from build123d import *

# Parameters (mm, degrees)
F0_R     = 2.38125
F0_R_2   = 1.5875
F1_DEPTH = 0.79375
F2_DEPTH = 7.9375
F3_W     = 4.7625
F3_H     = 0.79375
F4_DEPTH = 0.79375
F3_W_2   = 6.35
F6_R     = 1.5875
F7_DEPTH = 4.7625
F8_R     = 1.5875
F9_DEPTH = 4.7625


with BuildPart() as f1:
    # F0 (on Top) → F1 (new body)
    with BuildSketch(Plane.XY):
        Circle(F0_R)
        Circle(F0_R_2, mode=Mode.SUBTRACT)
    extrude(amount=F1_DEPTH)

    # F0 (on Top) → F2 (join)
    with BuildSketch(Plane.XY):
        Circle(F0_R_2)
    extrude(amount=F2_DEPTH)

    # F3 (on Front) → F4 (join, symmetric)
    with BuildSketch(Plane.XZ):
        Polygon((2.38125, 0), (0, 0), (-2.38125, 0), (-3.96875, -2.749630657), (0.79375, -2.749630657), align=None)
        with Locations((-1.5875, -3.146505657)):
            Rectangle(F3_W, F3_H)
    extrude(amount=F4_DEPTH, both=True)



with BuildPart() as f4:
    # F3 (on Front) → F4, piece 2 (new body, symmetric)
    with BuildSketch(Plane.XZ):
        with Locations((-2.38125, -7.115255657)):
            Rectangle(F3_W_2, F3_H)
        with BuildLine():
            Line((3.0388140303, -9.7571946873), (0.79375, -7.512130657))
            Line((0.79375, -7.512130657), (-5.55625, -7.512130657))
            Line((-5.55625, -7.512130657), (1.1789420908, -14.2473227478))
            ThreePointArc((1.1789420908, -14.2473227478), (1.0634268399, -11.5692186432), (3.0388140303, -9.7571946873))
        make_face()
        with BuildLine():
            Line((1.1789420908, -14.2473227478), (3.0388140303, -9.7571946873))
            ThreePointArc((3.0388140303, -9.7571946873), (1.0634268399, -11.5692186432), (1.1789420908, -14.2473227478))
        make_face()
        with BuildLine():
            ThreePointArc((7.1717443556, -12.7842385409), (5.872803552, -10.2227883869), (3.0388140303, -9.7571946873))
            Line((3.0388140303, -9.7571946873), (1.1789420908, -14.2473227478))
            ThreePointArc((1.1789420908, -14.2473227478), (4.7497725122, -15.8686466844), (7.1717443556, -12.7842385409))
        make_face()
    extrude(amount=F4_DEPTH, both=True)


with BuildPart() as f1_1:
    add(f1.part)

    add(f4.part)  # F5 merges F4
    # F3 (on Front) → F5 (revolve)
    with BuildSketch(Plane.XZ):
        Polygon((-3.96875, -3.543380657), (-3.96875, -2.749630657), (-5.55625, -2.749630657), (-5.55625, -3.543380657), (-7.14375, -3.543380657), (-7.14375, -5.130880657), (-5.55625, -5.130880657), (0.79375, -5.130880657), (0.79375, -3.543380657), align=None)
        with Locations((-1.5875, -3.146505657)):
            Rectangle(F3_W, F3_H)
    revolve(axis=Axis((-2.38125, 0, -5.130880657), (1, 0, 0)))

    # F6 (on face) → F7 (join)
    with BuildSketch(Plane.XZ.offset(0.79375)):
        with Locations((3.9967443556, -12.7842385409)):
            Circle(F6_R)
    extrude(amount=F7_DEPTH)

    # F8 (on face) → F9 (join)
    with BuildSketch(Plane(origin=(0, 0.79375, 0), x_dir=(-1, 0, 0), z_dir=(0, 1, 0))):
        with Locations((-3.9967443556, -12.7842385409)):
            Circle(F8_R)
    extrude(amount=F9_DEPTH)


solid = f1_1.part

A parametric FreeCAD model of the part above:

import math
import FreeCAD as App
import Part
import Sketcher

V = App.Vector
Q = App.Units.Quantity

doc = App.newDocument("Part")
params = doc.addObject("Spreadsheet::Sheet", "Params")
for row, (alias, value) in enumerate([
    ("sketch1_diameter", "0.1875 in"),
    ("sketch1_diameter2", "0.125 in"),
    ("pad1_length", "0.03125 in"),
    ("sketch2_diameter", "0.125 in"),
    ("pad2_length", "0.3125 in"),
    ("sketch3_width", "0.1875 in"),
    ("sketch3_height", "0.03125 in"),
    ("pad3_length", "0.0625 in"),
    ("sketch4_radius", "0.125 in"),
    ("sketch4_width", "0.25 in"),
    ("sketch4_height", "0.03125 in"),
    ("sketch4_length", "0.375 in"),
    ("sketch4_length2", "0.125 in"),
    ("pad4_length", "0.0625 in"),
    ("sketch5_width", "0.25 in"),
    ("sketch5_width2", "0.0625 in"),
    ("sketch5_height", "0.03125 in"),
    ("revolution_angle", "360 deg"),
    ("sketch6_diameter", "0.125 in"),
    ("pad5_length", "0.1875 in"),
    ("sketch7_diameter", "0.125 in"),
    ("pad6_length", "0.1875 in"),
], start=1):
    params.set(f"A{row}", alias)
    params.set(f"B{row}", "=" + value)
    params.setAlias(f"B{row}", alias)

body = doc.addObject("PartDesign::Body", "Body")

# Sketch on XY plane
sketch1 = body.newObject("Sketcher::SketchObject", "Sketch")
sketch1.AttachmentSupport = (doc.getObject("XY_Plane"), [""])
sketch1.MapMode = "FlatFace"
sketch1.addGeometry(Part.Circle(V(0, 0, 0), V(0, 0, 1), 2.38125), False)
sketch1.addGeometry(Part.Circle(V(0, 0, 0), V(0, 0, 1), 1.5875), False)
sketch1.addConstraint(Sketcher.Constraint("Coincident", 0, 3, -1, 1))
sketch1.addConstraint(Sketcher.Constraint("Coincident", 1, 3, -1, 1))
sketch1.addConstraint(Sketcher.Constraint("Diameter", 0, Q("0.1875 in")))
sketch1.addConstraint(Sketcher.Constraint("Diameter", 1, Q("0.125 in")))
sketch1.setExpression("Constraints[2]", "Params.sketch1_diameter")
sketch1.setExpression("Constraints[3]", "Params.sketch1_diameter2")
pad1 = body.newObject("PartDesign::Pad", "Pad")
pad1.Profile = sketch1
pad1.setExpression("Length", "Params.pad1_length")

# Sketch on XY plane
sketch2 = body.newObject("Sketcher::SketchObject", "Sketch001")
sketch2.AttachmentSupport = (doc.getObject("XY_Plane"), [""])
sketch2.MapMode = "FlatFace"
sketch2.addGeometry(Part.Circle(V(0, 0, 0), V(0, 0, 1), 1.5875), False)
sketch2.addConstraint(Sketcher.Constraint("Coincident", 0, 3, -1, 1))
sketch2.addConstraint(Sketcher.Constraint("Diameter", 0, Q("0.125 in")))
sketch2.setExpression("Constraints[1]", "Params.sketch2_diameter")
pad2 = body.newObject("PartDesign::Pad", "Pad001")
pad2.Profile = sketch2
pad2.setExpression("Length", "Params.pad2_length")

# Sketch on XZ plane
sketch3 = body.newObject("Sketcher::SketchObject", "Sketch002")
sketch3.AttachmentSupport = (doc.getObject("XZ_Plane"), [""])
sketch3.MapMode = "FlatFace"
sketch3.addGeometry(Part.LineSegment(V(2.38125, 0, 0), V(-2.38125, 0, 0)), False)
sketch3.addGeometry(Part.LineSegment(V(-2.38125, 0, 0), V(-3.96875, -2.749631, 0)), False)
sketch3.addGeometry(Part.LineSegment(V(-3.96875, -2.749631, 0), V(-3.96875, -3.543381, 0)), False)
sketch3.addGeometry(Part.LineSegment(V(-3.96875, -3.543381, 0), V(0.79375, -3.543381, 0)), False)
sketch3.addGeometry(Part.LineSegment(V(0.79375, -3.543381, 0), V(0.79375, -2.749631, 0)), False)
sketch3.addGeometry(Part.LineSegment(V(0.79375, -2.749631, 0), V(2.38125, 0, 0)), False)
sketch3.addConstraint(Sketcher.Constraint("Coincident", 0, 2, 1, 1))
sketch3.addConstraint(Sketcher.Constraint("Coincident", 1, 2, 2, 1))
sketch3.addConstraint(Sketcher.Constraint("Coincident", 2, 2, 3, 1))
sketch3.addConstraint(Sketcher.Constraint("Coincident", 3, 2, 4, 1))
sketch3.addConstraint(Sketcher.Constraint("Coincident", 4, 2, 5, 1))
sketch3.addConstraint(Sketcher.Constraint("Coincident", 5, 2, 0, 1))
sketch3.addConstraint(Sketcher.Constraint("Horizontal", 0))
sketch3.addConstraint(Sketcher.Constraint("Vertical", 2))
sketch3.addConstraint(Sketcher.Constraint("Horizontal", 3))
sketch3.addConstraint(Sketcher.Constraint("Vertical", 4))
sketch3.addConstraint(Sketcher.Constraint("Symmetric", 0, 2, 5, 2, -1, 1))
sketch3.addConstraint(Sketcher.Constraint("Parallel", 1, 5))
sketch3.addConstraint(Sketcher.Constraint("Horizontal", 1, 2, 4, 2))
sketch3.addConstraint(Sketcher.Constraint("Angle", 1, Q("-120 deg")))
sketch3.addConstraint(Sketcher.Constraint("DistanceX", 0, 2, 0, 1, Q("0.1875 in")))
sketch3.addConstraint(Sketcher.Constraint("DistanceY", 2, 2, 2, 1, Q("0.03125 in")))
sketch3.addConstraint(Sketcher.Constraint("DistanceX", 1, 2, 5, 2, Q("0.25 in")))
sketch3.setExpression("Constraints[14]", "Params.sketch3_width")
sketch3.setExpression("Constraints[15]", "Params.sketch3_height")
pad3 = body.newObject("PartDesign::Pad", "Pad002")
pad3.Profile = sketch3
pad3.setExpression("Length", "Params.pad3_length")
pad3.Midplane = True
body2 = doc.addObject("PartDesign::Body", "Body001")

# Sketch on XZ plane
sketch4 = body2.newObject("Sketcher::SketchObject", "Sketch003")
sketch4.AttachmentSupport = (doc.getObject("XZ_Plane001"), [""])
sketch4.MapMode = "FlatFace"
sketch4.addGeometry(Part.LineSegment(V(-5.55625, -6.718381, 0), V(-5.55625, -7.512131, 0)), False)
sketch4.addGeometry(Part.LineSegment(V(-5.55625, -7.512131, 0), V(1.178942, -14.247323, 0)), False)
sketch4.addGeometry(Part.ArcOfCircle(Part.Circle(V(3.996744, -12.784239, 0), V(0, 0, 1), 3.175), math.radians(-152.560359), math.radians(0)), False)
sketch4.addGeometry(Part.ArcOfCircle(Part.Circle(V(3.996744, -12.784239, 0), V(0, 0, 1), 3.175), math.radians(0), math.radians(107.560359)), False)
sketch4.addGeometry(Part.LineSegment(V(3.038814, -9.757195, 0), V(0.79375, -7.512131, 0)), False)
sketch4.addGeometry(Part.LineSegment(V(0.79375, -7.512131, 0), V(0.79375, -6.718381, 0)), False)
sketch4.addGeometry(Part.LineSegment(V(0.79375, -6.718381, 0), V(-5.55625, -6.718381, 0)), False)
sketch4.addConstraint(Sketcher.Constraint("Coincident", 0, 2, 1, 1))
sketch4.addConstraint(Sketcher.Constraint("Coincident", 1, 2, 2, 1))
sketch4.addConstraint(Sketcher.Constraint("Tangent", 2, 2, 3, 1))
sketch4.addConstraint(Sketcher.Constraint("Coincident", 3, 2, 4, 1))
sketch4.addConstraint(Sketcher.Constraint("Coincident", 4, 2, 5, 1))
sketch4.addConstraint(Sketcher.Constraint("Coincident", 5, 2, 6, 1))
sketch4.addConstraint(Sketcher.Constraint("Coincident", 6, 2, 0, 1))
sketch4.addConstraint(Sketcher.Constraint("Vertical", 0))
sketch4.addConstraint(Sketcher.Constraint("Vertical", 5))
sketch4.addConstraint(Sketcher.Constraint("Horizontal", 6))
sketch4.addConstraint(Sketcher.Constraint("Equal", 2, 3))
sketch4.addConstraint(Sketcher.Constraint("Parallel", 1, 4))
sketch4.addConstraint(Sketcher.Constraint("Horizontal", 3, 3, 2, 2))
sketch4.addConstraint(Sketcher.Constraint("Horizontal", 0, 2, 4, 2))
sketch4.addConstraint(Sketcher.Constraint("Angle", 1, Q("-45 deg")))
sketch4.addConstraint(Sketcher.Constraint("Radius", 2, Q("0.125 in")))
sketch4.addConstraint(Sketcher.Constraint("DistanceX", 6, 2, 6, 1, Q("0.25 in")))
sketch4.addConstraint(Sketcher.Constraint("DistanceY", 0, 2, 0, 1, Q("0.03125 in")))
sketch4.addConstraint(Sketcher.Constraint("Distance", 1, Q("0.375 in")))
sketch4.addConstraint(Sketcher.Constraint("Distance", 4, Q("0.125 in")))
sketch4.addConstraint(Sketcher.Constraint("DistanceX", 0, 2, -1, 1, Q("0.21875 in")))
sketch4.addConstraint(Sketcher.Constraint("DistanceY", 2, 3, -1, 1, Q("12.784239 mm")))
sketch4.setExpression("Constraints[15]", "Params.sketch4_radius")
sketch4.setExpression("Constraints[16]", "Params.sketch4_width")
sketch4.setExpression("Constraints[17]", "Params.sketch4_height")
sketch4.setExpression("Constraints[18]", "Params.sketch4_length")
sketch4.setExpression("Constraints[19]", "Params.sketch4_length2")
pad4 = body2.newObject("PartDesign::Pad", "Pad003")
pad4.Profile = sketch4
pad4.setExpression("Length", "Params.pad4_length")
pad4.Midplane = True
body.AllowCompound = True
doc.recompute()

boolean = body.newObject("PartDesign::Boolean", "Boolean")
boolean.Type = "Fuse"
boolean.addObjects([body2])

# Sketch on XZ plane
sketch5 = body.newObject("Sketcher::SketchObject", "Sketch004")
sketch5.AttachmentSupport = (doc.getObject("XZ_Plane"), [""])
sketch5.MapMode = "FlatFace"
sketch5.addGeometry(Part.LineSegment(V(-5.55625, -2.749631, 0), V(-5.55625, -3.543381, 0)), False)
sketch5.addGeometry(Part.LineSegment(V(-5.55625, -3.543381, 0), V(-7.14375, -3.543381, 0)), False)
sketch5.addGeometry(Part.LineSegment(V(-7.14375, -3.543381, 0), V(-7.14375, -5.130881, 0)), False)
sketch5.addGeometry(Part.LineSegment(V(-7.14375, -5.130881, 0), V(0.79375, -5.130881, 0)), False)
sketch5.addGeometry(Part.LineSegment(V(0.79375, -5.130881, 0), V(0.79375, -2.749631, 0)), False)
sketch5.addGeometry(Part.LineSegment(V(0.79375, -2.749631, 0), V(-5.55625, -2.749631, 0)), False)
sketch5.addGeometry(Part.LineSegment(V(-7.14375, -5.130881, 0), V(0.79375, -5.130881, 0)), True)  # axis
sketch5.addConstraint(Sketcher.Constraint("Coincident", 0, 2, 1, 1))
sketch5.addConstraint(Sketcher.Constraint("Coincident", 1, 2, 2, 1))
sketch5.addConstraint(Sketcher.Constraint("Coincident", 2, 2, 3, 1))
sketch5.addConstraint(Sketcher.Constraint("Coincident", 3, 2, 4, 1))
sketch5.addConstraint(Sketcher.Constraint("Coincident", 4, 2, 5, 1))
sketch5.addConstraint(Sketcher.Constraint("Coincident", 5, 2, 0, 1))
sketch5.addConstraint(Sketcher.Constraint("Vertical", 0))
sketch5.addConstraint(Sketcher.Constraint("Horizontal", 1))
sketch5.addConstraint(Sketcher.Constraint("Vertical", 2))
sketch5.addConstraint(Sketcher.Constraint("Horizontal", 3))
sketch5.addConstraint(Sketcher.Constraint("Vertical", 4))
sketch5.addConstraint(Sketcher.Constraint("Horizontal", 5))
sketch5.addConstraint(Sketcher.Constraint("Horizontal", 6))
sketch5.addConstraint(Sketcher.Constraint("Coincident", 6, 1, 2, 2))
sketch5.addConstraint(Sketcher.Constraint("Vertical", 4, 2, 6, 2))
sketch5.addConstraint(Sketcher.Constraint("Equal", 1, 2))
sketch5.addConstraint(Sketcher.Constraint("DistanceX", 5, 2, 5, 1, Q("0.25 in")))
sketch5.addConstraint(Sketcher.Constraint("DistanceX", 1, 2, 1, 1, Q("0.0625 in")))
sketch5.addConstraint(Sketcher.Constraint("DistanceY", 0, 2, 0, 1, Q("0.03125 in")))
sketch5.addConstraint(Sketcher.Constraint("DistanceX", 0, 2, -1, 1, Q("0.21875 in")))
sketch5.addConstraint(Sketcher.Constraint("DistanceY", 0, 2, -1, 1, Q("3.543381 mm")))
sketch5.setExpression("Constraints[16]", "Params.sketch5_width")
sketch5.setExpression("Constraints[17]", "Params.sketch5_width2")
sketch5.setExpression("Constraints[18]", "Params.sketch5_height")
revolution = body.newObject("PartDesign::Revolution", "Revolution")
revolution.Profile = sketch5
revolution.ReferenceAxis = (sketch5, ["Axis0"])
revolution.setExpression("Angle", "Params.revolution_angle")

# Sketch on XZ plane
sketch6 = body.newObject("Sketcher::SketchObject", "Sketch005")
sketch6.AttachmentSupport = (doc.getObject("XZ_Plane"), [""])
sketch6.MapMode = "FlatFace"
sketch6.AttachmentOffset = App.Placement(V(0, 0, 0.03125 * 25.4), App.Rotation())
sketch6.addGeometry(Part.Circle(V(3.996744, -12.784239, 0), V(0, 0, 1), 1.5875), False)
sketch6.addConstraint(Sketcher.Constraint("Diameter", 0, Q("0.125 in")))
sketch6.addConstraint(Sketcher.Constraint("DistanceY", 0, 3, -1, 1, Q("12.784239 mm")))
sketch6.addConstraint(Sketcher.Constraint("DistanceX", -1, 1, 0, 3, Q("3.996744 mm")))
sketch6.setExpression("Constraints[0]", "Params.sketch6_diameter")
pad5 = body.newObject("PartDesign::Pad", "Pad004")
pad5.Profile = sketch6
pad5.setExpression("Length", "Params.pad5_length")

# Sketch on XZ plane
sketch7 = body.newObject("Sketcher::SketchObject", "Sketch006")
sketch7.AttachmentSupport = (doc.getObject("XZ_Plane"), [""])
sketch7.MapMode = "FlatFace"
sketch7.AttachmentOffset = App.Placement(V(0, 0, -0.03125 * 25.4), App.Rotation())
sketch7.addGeometry(Part.Circle(V(3.996744, -12.784239, 0), V(0, 0, 1), 1.5875), False)
sketch7.addConstraint(Sketcher.Constraint("Diameter", 0, Q("0.125 in")))
sketch7.addConstraint(Sketcher.Constraint("DistanceY", 0, 3, -1, 1, Q("12.784239 mm")))
sketch7.addConstraint(Sketcher.Constraint("DistanceX", -1, 1, 0, 3, Q("3.996744 mm")))
sketch7.setExpression("Constraints[0]", "Params.sketch7_diameter")
pad6 = body.newObject("PartDesign::Pad", "Pad005")
pad6.Profile = sketch7
pad6.setExpression("Length", "Params.pad6_length")
pad6.Reversed = True

doc.recompute()
